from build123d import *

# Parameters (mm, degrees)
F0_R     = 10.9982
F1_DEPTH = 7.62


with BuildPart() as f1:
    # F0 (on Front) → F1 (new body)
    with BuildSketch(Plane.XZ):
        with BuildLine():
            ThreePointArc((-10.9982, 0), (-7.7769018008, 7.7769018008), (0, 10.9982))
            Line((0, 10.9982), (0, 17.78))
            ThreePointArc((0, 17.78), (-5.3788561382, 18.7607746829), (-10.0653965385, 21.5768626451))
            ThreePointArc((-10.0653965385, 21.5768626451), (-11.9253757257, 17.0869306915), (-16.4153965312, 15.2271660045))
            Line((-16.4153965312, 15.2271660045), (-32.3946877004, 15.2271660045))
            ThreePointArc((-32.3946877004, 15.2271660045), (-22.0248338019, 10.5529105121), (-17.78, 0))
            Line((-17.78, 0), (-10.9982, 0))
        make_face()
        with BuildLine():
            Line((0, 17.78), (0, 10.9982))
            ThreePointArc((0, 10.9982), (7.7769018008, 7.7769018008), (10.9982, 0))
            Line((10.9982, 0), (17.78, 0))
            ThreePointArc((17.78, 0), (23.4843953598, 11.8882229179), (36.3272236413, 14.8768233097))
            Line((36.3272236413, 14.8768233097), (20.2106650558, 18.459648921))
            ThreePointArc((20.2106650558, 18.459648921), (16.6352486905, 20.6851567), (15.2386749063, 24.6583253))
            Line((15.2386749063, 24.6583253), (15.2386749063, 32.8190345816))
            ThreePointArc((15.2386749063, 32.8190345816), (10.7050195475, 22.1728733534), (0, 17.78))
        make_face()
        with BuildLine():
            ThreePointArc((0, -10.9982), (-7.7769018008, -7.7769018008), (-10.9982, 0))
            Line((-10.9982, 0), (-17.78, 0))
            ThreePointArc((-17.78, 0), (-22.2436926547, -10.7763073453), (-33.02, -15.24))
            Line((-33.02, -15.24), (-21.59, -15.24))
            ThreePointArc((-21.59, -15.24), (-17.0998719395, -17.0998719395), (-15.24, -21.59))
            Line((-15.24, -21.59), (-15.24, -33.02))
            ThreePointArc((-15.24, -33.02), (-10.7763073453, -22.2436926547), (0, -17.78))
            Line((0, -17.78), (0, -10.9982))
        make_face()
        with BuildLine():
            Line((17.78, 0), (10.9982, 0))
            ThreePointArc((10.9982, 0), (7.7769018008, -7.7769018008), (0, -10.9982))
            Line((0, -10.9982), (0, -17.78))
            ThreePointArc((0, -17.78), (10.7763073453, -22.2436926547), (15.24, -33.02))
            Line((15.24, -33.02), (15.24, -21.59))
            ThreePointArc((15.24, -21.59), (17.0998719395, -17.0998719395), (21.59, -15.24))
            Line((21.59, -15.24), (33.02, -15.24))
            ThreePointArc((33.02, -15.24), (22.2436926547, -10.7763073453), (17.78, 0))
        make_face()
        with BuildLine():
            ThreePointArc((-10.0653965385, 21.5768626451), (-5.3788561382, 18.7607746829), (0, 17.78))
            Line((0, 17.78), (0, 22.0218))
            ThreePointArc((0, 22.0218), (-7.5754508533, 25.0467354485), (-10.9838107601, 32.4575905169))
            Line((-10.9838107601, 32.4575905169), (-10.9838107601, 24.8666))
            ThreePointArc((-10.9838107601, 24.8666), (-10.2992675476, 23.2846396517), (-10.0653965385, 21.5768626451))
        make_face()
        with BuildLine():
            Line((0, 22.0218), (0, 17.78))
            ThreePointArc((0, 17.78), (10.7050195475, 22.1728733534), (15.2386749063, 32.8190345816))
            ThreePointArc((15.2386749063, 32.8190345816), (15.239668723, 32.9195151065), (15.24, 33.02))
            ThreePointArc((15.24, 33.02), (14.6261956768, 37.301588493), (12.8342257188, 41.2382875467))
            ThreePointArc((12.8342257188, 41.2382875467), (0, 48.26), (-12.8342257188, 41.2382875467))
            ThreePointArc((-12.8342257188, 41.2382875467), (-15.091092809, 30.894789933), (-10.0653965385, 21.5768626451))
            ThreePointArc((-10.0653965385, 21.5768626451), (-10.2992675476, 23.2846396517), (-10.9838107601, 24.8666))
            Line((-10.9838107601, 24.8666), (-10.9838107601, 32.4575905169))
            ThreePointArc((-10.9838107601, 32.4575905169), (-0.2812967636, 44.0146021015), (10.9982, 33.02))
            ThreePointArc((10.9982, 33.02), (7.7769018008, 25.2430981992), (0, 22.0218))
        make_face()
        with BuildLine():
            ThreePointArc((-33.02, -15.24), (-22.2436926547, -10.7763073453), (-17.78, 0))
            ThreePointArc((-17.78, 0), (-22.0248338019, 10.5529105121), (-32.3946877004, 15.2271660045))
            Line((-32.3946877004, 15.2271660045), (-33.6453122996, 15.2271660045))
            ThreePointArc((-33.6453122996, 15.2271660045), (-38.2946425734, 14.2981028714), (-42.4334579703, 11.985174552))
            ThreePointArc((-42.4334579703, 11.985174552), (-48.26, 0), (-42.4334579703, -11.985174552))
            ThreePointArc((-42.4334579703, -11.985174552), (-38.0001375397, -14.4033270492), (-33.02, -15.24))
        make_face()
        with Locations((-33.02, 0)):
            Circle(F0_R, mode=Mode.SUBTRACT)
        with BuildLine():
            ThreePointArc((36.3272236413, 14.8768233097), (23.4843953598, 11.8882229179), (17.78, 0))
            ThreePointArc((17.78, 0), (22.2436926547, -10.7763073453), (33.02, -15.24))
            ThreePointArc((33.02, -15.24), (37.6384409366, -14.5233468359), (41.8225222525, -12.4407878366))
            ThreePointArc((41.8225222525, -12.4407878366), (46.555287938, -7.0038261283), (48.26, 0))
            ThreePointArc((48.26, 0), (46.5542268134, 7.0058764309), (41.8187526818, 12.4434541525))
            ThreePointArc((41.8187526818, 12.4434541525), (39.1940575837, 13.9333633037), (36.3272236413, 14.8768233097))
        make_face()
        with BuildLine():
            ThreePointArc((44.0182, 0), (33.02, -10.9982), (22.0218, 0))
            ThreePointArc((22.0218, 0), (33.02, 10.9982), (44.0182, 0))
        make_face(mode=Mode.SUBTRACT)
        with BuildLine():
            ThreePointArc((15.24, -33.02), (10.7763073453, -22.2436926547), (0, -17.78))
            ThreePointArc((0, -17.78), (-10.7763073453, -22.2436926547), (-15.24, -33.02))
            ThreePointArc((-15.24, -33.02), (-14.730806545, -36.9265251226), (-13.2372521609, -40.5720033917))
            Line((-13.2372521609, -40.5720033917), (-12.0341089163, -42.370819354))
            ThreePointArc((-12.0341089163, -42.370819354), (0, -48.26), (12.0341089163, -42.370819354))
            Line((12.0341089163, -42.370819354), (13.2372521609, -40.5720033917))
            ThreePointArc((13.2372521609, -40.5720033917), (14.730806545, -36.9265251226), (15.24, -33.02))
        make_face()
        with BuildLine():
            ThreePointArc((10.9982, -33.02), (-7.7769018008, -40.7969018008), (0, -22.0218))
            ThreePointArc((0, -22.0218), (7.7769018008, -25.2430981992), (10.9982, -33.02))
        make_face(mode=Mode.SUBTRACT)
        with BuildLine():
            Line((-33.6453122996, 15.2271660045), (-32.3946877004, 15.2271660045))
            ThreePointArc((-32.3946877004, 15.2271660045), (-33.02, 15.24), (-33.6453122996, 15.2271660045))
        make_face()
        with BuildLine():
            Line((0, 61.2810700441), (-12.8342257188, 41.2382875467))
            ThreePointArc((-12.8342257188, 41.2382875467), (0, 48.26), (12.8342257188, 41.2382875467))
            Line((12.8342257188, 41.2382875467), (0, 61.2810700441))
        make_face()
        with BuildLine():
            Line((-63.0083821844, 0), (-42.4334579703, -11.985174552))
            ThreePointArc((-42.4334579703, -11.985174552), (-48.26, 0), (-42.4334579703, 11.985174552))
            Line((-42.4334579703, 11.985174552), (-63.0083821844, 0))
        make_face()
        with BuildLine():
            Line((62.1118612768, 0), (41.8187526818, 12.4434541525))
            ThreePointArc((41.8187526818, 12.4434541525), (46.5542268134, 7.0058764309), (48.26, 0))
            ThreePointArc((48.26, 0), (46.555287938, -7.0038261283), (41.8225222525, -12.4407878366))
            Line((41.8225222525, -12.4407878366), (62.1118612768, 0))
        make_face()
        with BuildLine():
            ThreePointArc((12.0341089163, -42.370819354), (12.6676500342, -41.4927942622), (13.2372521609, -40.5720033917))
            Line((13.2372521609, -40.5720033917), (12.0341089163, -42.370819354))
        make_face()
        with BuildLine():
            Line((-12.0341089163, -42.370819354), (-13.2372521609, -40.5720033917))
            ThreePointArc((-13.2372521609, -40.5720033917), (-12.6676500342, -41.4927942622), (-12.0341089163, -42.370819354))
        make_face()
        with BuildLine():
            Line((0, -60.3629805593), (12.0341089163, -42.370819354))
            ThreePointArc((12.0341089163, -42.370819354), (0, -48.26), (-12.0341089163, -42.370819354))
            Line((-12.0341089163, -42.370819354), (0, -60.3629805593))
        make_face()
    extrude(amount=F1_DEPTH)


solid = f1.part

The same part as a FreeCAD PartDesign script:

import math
import FreeCAD as App
import Part
import Sketcher
from FreeCAD import Vector
Q = App.Units.Quantity

doc = App.newDocument("Part")
body = doc.addObject("PartDesign::Body", "Body")

# Sketch on XZ plane
sketch1 = body.newObject("Sketcher::SketchObject", "Sketch")
sketch1.AttachmentSupport = (doc.getObject("XZ_Plane"), [""])
sketch1.MapMode = "FlatFace"
sketch1.addGeometry(Part.LineSegment(Vector(36.327224, 14.876823, 0), Vector(20.210665, 18.459649, 0)), False)
sketch1.addGeometry(Part.ArcOfCircle(Part.Circle(Vector(21.588675, 24.658325, 0), Vector(0, 0, 1), 6.35), math.radians(180), math.radians(257.466557)), False)
sketch1.addGeometry(Part.LineSegment(Vector(15.238675, 24.658325, 0), Vector(15.238675, 32.819035, 0)), False)
sketch1.addGeometry(Part.ArcOfCircle(Part.Circle(Vector(0.000001, 33.02, 0), Vector(0, 0, 1), 15.239999), math.radians(-0.755565), math.radians(0)), False)
sketch1.addGeometry(Part.ArcOfCircle(Part.Circle(Vector(0, 33.02, 0), Vector(0, 0, 1), 15.24), math.radians(0), math.radians(32.633122)), False)
sketch1.addGeometry(Part.LineSegment(Vector(12.834226, 41.238288, 0), Vector(0, 61.28107, 0)), False)
sketch1.addGeometry(Part.LineSegment(Vector(0, 61.28107, 0), Vector(-12.834226, 41.238288, 0)), False)
sketch1.addGeometry(Part.ArcOfCircle(Part.Circle(Vector(0, 33.02, 0), Vector(0, 0, 1), 15.24), math.radians(147.366878), math.radians(228.665105)), False)
sketch1.addGeometry(Part.ArcOfCircle(Part.Circle(Vector(-16.415397, 21.577166, 0), Vector(0, 0, 1), 6.35), math.radians(-90), math.radians(-0.002737)), False)
sketch1.addGeometry(Part.LineSegment(Vector(-16.415397, 15.227166, 0), Vector(-32.394688, 15.227166, 0)), False)
sketch1.addGeometry(Part.ArcOfCircle(Part.Circle(Vector(-33.02, 0, 0), Vector(0, 0, 1), 15.24), math.radians(87.648437), math.radians(92.351563)), False)
sketch1.addGeometry(Part.ArcOfCircle(Part.Circle(Vector(-33.02, 0, 0), Vector(0, 0, 1), 15.24), math.radians(92.351563), math.radians(128.146984)), False)
sketch1.addGeometry(Part.LineSegment(Vector(-42.433458, 11.985175, 0), Vector(-63.008382, 0, 0)), False)
sketch1.addGeometry(Part.LineSegment(Vector(-63.008382, 0, 0), Vector(-42.433458, -11.985175, 0)), False)
sketch1.addGeometry(Part.ArcOfCircle(Part.Circle(Vector(-33.02, 0, 0), Vector(0, 0, 1), 15.24), math.radians(-128.146984), math.radians(-90)), False)
sketch1.addGeometry(Part.LineSegment(Vector(-33.02, -15.24, 0), Vector(-21.59, -15.24, 0)), False)
sketch1.addGeometry(Part.ArcOfCircle(Part.Circle(Vector(-21.59, -21.59, 0), Vector(0, 0, 1), 6.35), math.radians(0), math.radians(90)), False)
sketch1.addGeometry(Part.LineSegment(Vector(-15.24, -21.59, 0), Vector(-15.24, -33.02, 0)), False)
sketch1.addGeometry(Part.ArcOfCircle(Part.Circle(Vector(0, -33.02, 0), Vector(0, 0, 1), 15.24), math.radians(180), math.radians(209.705251)), False)
sketch1.addGeometry(Part.ArcOfCircle(Part.Circle(Vector(0, -33.02, 0), Vector(0, 0, 1), 15.24), math.radians(-150.294749), math.radians(-142.151853)), False)
sketch1.addGeometry(Part.LineSegment(Vector(-12.034109, -42.370819, 0), Vector(0, -60.362981, 0)), False)
sketch1.addGeometry(Part.LineSegment(Vector(0, -60.362981, 0), Vector(12.034109, -42.370819, 0)), False)
sketch1.addGeometry(Part.ArcOfCircle(Part.Circle(Vector(0, -33.02, 0), Vector(0, 0, 1), 15.24), math.radians(-37.848147), math.radians(-29.705251)), False)
sketch1.addGeometry(Part.ArcOfCircle(Part.Circle(Vector(0, -33.02, 0), Vector(0, 0, 1), 15.24), math.radians(-29.705251), math.radians(0)), False)
sketch1.addGeometry(Part.LineSegment(Vector(15.24, -33.02, 0), Vector(15.24, -21.59, 0)), False)
sketch1.addGeometry(Part.ArcOfCircle(Part.Circle(Vector(21.59, -21.59, 0), Vector(0, 0, 1), 6.35), math.radians(90), math.radians(180)), False)
sketch1.addGeometry(Part.LineSegment(Vector(21.59, -15.24, 0), Vector(33.02, -15.24, 0)), False)
sketch1.addGeometry(Part.ArcOfCircle(Part.Circle(Vector(33.02, 0, 0), Vector(0, 0, 1), 15.24), math.radians(-90), math.radians(-54.718553)), False)
sketch1.addGeometry(Part.LineSegment(Vector(41.822522, -12.440788, 0), Vector(62.111861, 0, 0)), False)
sketch1.addGeometry(Part.LineSegment(Vector(62.111861, 0, 0), Vector(41.818753, 12.443454, 0)), False)
sketch1.addGeometry(Part.ArcOfCircle(Part.Circle(Vector(33.02, 0, 0), Vector(0, 0, 1), 15.24), math.radians(54.735912), math.radians(77.466557)), False)
sketch1.addGeometry(Part.Circle(Vector(-33.02, 0, 0), Vector(0, 0, 1), 10.9982), False)
sketch1.addGeometry(Part.ArcOfCircle(Part.Circle(Vector(0, -33.02, 0), Vector(0, 0, 1), 10.9982), math.radians(0), math.radians(90)), False)
sketch1.addGeometry(Part.ArcOfCircle(Part.Circle(Vector(0, -33.02, 0), Vector(0, 0, 1), 10.9982), math.radians(90), math.radians(360)), False)
sketch1.addGeometry(Part.ArcOfCircle(Part.Circle(Vector(0, 0, 0), Vector(0, 0, 1), 10.9982), math.radians(90), math.radians(180)), False)
sketch1.addGeometry(Part.ArcOfCircle(Part.Circle(Vector(0, 0, 0), Vector(0, 0, 1), 10.9982), math.radians(0), math.radians(90)), False)
sketch1.addGeometry(Part.ArcOfCircle(Part.Circle(Vector(0, 0, 0), Vector(0, 0, 1), 10.9982), math.radians(-90), math.radians(0)), False)
sketch1.addGeometry(Part.ArcOfCircle(Part.Circle(Vector(0, 0, 0), Vector(0, 0, 1), 10.9982), math.radians(180), math.radians(270)), False)
sketch1.addGeometry(Part.Circle(Vector(33.02, 0, 0), Vector(0, 0, 1), 10.9982), False)
sketch1.addGeometry(Part.ArcOfCircle(Part.Circle(Vector(0, 33.02, 0), Vector(0, 0, 1), 10.9982), math.radians(-177.068816), math.radians(-90)), False)
sketch1.addGeometry(Part.ArcOfCircle(Part.Circle(Vector(0, 33.02, 0), Vector(0, 0, 1), 10.9982), math.radians(0), math.radians(182.931184)), False)
sketch1.addGeometry(Part.ArcOfCircle(Part.Circle(Vector(0, 33.02, 0), Vector(0, 0, 1), 10.9982), math.radians(-90), math.radians(0)), False)
sketch1.addConstraint(Sketcher.Constraint("Tangent", 0, 2, 1, 2))
sketch1.addConstraint(Sketcher.Constraint("Tangent", 1, 1, 2, 1))
sketch1.addConstraint(Sketcher.Constraint("Coincident", 2, 2, 3, 1))
sketch1.addConstraint(Sketcher.Constraint("Tangent", 3, 2, 4, 1))
sketch1.addConstraint(Sketcher.Constraint("Tangent", 4, 2, 5, 1))
sketch1.addConstraint(Sketcher.Constraint("Coincident", 5, 2, 6, 1))
sketch1.addConstraint(Sketcher.Constraint("Tangent", 6, 2, 7, 1))
sketch1.addConstraint(Sketcher.Constraint("Coincident", 7, 2, 8, 2))
sketch1.addConstraint(Sketcher.Constraint("Tangent", 8, 1, 9, 1))
sketch1.addConstraint(Sketcher.Constraint("Coincident", 9, 2, 10, 1))
sketch1.addConstraint(Sketcher.Constraint("Tangent", 10, 2, 11, 1))
sketch1.addConstraint(Sketcher.Constraint("Coincident", 11, 2, 12, 1))
sketch1.addConstraint(Sketcher.Constraint("Coincident", 12, 2, 13, 1))
sketch1.addConstraint(Sketcher.Constraint("Coincident", 13, 2, 14, 1))
sketch1.addConstraint(Sketcher.Constraint("Tangent", 14, 2, 15, 1))
sketch1.addConstraint(Sketcher.Constraint("Tangent", 15, 2, 16, 2))
sketch1.addConstraint(Sketcher.Constraint("Tangent", 16, 1, 17, 1))
sketch1.addConstraint(Sketcher.Constraint("Tangent", 17, 2, 18, 1))
sketch1.addConstraint(Sketcher.Constraint("Tangent", 18, 2, 19, 1))
sketch1.addConstraint(Sketcher.Constraint("Coincident", 19, 2, 20, 1))
sketch1.addConstraint(Sketcher.Constraint("Coincident", 20, 2, 21, 1))
sketch1.addConstraint(Sketcher.Constraint("Coincident", 21, 2, 22, 1))
sketch1.addConstraint(Sketcher.Constraint("Tangent", 22, 2, 23, 1))
sketch1.addConstraint(Sketcher.Constraint("Tangent", 23, 2, 24, 1))
sketch1.addConstraint(Sketcher.Constraint("Tangent", 24, 2, 25, 2))
sketch1.addConstraint(Sketcher.Constraint("Tangent", 25, 1, 26, 1))
sketch1.addConstraint(Sketcher.Constraint("Tangent", 26, 2, 27, 1))
sketch1.addConstraint(Sketcher.Constraint("Coincident", 27, 2, 28, 1))
sketch1.addConstraint(Sketcher.Constraint("Coincident", 28, 2, 29, 1))
sketch1.addConstraint(Sketcher.Constraint("Coincident", 29, 2, 30, 1))
sketch1.addConstraint(Sketcher.Constraint("Tangent", 30, 2, 0, 1))
sketch1.addConstraint(Sketcher.Constraint("Tangent", 32, 1, 33, 2))
sketch1.addConstraint(Sketcher.Constraint("Coincident", 33, 1, 32, 2))
sketch1.addConstraint(Sketcher.Constraint("Tangent", 34, 1, 35, 2))
sketch1.addConstraint(Sketcher.Constraint("Tangent", 35, 1, 36, 2))
sketch1.addConstraint(Sketcher.Constraint("Tangent", 36, 1, 37, 2))
sketch1.addConstraint(Sketcher.Constraint("Tangent", 37, 1, 34, 2))
sketch1.addConstraint(Sketcher.Constraint("Tangent", 39, 1, 40, 2))
sketch1.addConstraint(Sketcher.Constraint("Tangent", 40, 1, 41, 2))
sketch1.addConstraint(Sketcher.Constraint("Tangent", 41, 1, 39, 2))
sketch1.addConstraint(Sketcher.Constraint("Vertical", 2))
sketch1.addConstraint(Sketcher.Constraint("Horizontal", 9))
sketch1.addConstraint(Sketcher.Constraint("Horizontal", 15))
sketch1.addConstraint(Sketcher.Constraint("Vertical", 17))
sketch1.addConstraint(Sketcher.Constraint("Vertical", 24))
sketch1.addConstraint(Sketcher.Constraint("Horizontal", 26))
sketch1.addConstraint(Sketcher.Constraint("Coincident", 34, 3, -1, 1))
sketch1.addConstraint(Sketcher.Constraint("Coincident", 7, 3, 3, 3))
sketch1.addConstraint(Sketcher.Constraint("Coincident", 14, 3, 10, 3))
sketch1.addConstraint(Sketcher.Constraint("Coincident", 22, 3, 18, 3))
sketch1.addConstraint(Sketcher.Constraint("Coincident", 30, 3, 27, 3))
sketch1.addConstraint(Sketcher.Constraint("Coincident", 31, 3, 10, 3))
sketch1.addConstraint(Sketcher.Constraint("Coincident", 32, 3, 18, 3))
sketch1.addConstraint(Sketcher.Constraint("Coincident", 38, 3, 27, 3))
sketch1.addConstraint(Sketcher.Constraint("Coincident", 39, 3, 3, 3))
sketch1.addConstraint(Sketcher.Constraint("Equal", 3, 4))
sketch1.addConstraint(Sketcher.Constraint("Equal", 4, 7))
sketch1.addConstraint(Sketcher.Constraint("Equal", 1, 8))
sketch1.addConstraint(Sketcher.Constraint("Equal", 7, 10))
sketch1.addConstraint(Sketcher.Constraint("Equal", 10, 11))
sketch1.addConstraint(Sketcher.Constraint("Equal", 11, 14))
sketch1.addConstraint(Sketcher.Constraint("Equal", 8, 16))
sketch1.addConstraint(Sketcher.Constraint("Equal", 14, 18))
sketch1.addConstraint(Sketcher.Constraint("Equal", 18, 19))
sketch1.addConstraint(Sketcher.Constraint("Equal", 19, 22))
sketch1.addConstraint(Sketcher.Constraint("Equal", 22, 23))
sketch1.addConstraint(Sketcher.Constraint("Equal", 16, 25))
sketch1.addConstraint(Sketcher.Constraint("Equal", 23, 27))
sketch1.addConstraint(Sketcher.Constraint("Equal", 27, 30))
sketch1.addConstraint(Sketcher.Constraint("Equal", 31, 32))
sketch1.addConstraint(Sketcher.Constraint("Equal", 33, 34))
sketch1.addConstraint(Sketcher.Constraint("Equal", 34, 35))
sketch1.addConstraint(Sketcher.Constraint("Equal", 37, 38))
sketch1.addConstraint(Sketcher.Constraint("Equal", 38, 39))
sketch1.addConstraint(Sketcher.Constraint("Symmetric", 3, 3, 18, 3, -1, 1))
sketch1.addConstraint(Sketcher.Constraint("Symmetric", 10, 3, 27, 3, -1, 1))
sketch1.addConstraint(Sketcher.Constraint("Symmetric", 16, 3, 25, 3, -2))
sketch1.addConstraint(Sketcher.Constraint("PointOnObject", 5, 2, -2))
sketch1.addConstraint(Sketcher.Constraint("PointOnObject", 12, 2, -1))
sketch1.addConstraint(Sketcher.Constraint("PointOnObject", 20, 2, -2))
sketch1.addConstraint(Sketcher.Constraint("PointOnObject", 28, 2, -1))
sketch1.addConstraint(Sketcher.Constraint("PointOnObject", 33, 1, -2))
sketch1.addConstraint(Sketcher.Constraint("PointOnObject", 34, 1, -2))
sketch1.addConstraint(Sketcher.Constraint("PointOnObject", 35, 1, -1))
sketch1.addConstraint(Sketcher.Constraint("PointOnObject", 36, 1, -2))
sketch1.addConstraint(Sketcher.Constraint("PointOnObject", 37, 1, -1))
sketch1.addConstraint(Sketcher.Constraint("PointOnObject", 41, 1, -2))
sketch1.addConstraint(Sketcher.Constraint("Horizontal", 41, 3, 3, 2))
sketch1.addConstraint(Sketcher.Constraint("Horizontal", 9, 2, 10, 2))
sketch1.addConstraint(Sketcher.Constraint("Horizontal", 19, 2, 21, 2))
sketch1.addConstraint(Sketcher.Constraint("Horizontal", 18, 2, 22, 2))
sketch1.addConstraint(Sketcher.Constraint("Horizontal", 23, 2, 32, 1))
sketch1.addConstraint(Sketcher.Constraint("Horizontal", 3, 2, 40, 1))
sketch1.addConstraint(Sketcher.Constraint("Vertical", 11, 2, 13, 2))
sketch1.addConstraint(Sketcher.Constraint("Equal", 26, 17))
sketch1.addConstraint(Sketcher.Constraint("Equal", 6, 28))
sketch1.addConstraint(Sketcher.Constraint("Radius", 3, Q("0.5999999 in")))
sketch1.addConstraint(Sketcher.Constraint("Radius", 1, Q("0.25 in")))
sketch1.addConstraint(Sketcher.Constraint("Diameter", 31, Q("0.866 in")))
sketch1.addConstraint(Sketcher.Constraint("DistanceX", 15, 1, 15, 2, Q("0.45 in")))
sketch1.addConstraint(Sketcher.Constraint("Distance", 0, Q("0.65 in")))
sketch1.addConstraint(Sketcher.Constraint("Distance", 5, Q("0.937 in")))
sketch1.addConstraint(Sketcher.Constraint("DistanceX", 9, 2, 9, 1, 15.979291))
sketch1.addConstraint(Sketcher.Constraint("DistanceY", 2, 1, 2, 2, 8.160709))
sketch1.addConstraint(Sketcher.Constraint("Distance", 20, 21.64573))
sketch1.addConstraint(Sketcher.Constraint("DistanceX", 19, 2, -1, 1, 12.034109))
sketch1.addConstraint(Sketcher.Constraint("DistanceX", -1, 1, 28, 2, 62.111861))
sketch1.addConstraint(Sketcher.Constraint("DistanceX", 39, 1, -1, 1, 10.983811))
sketch1.addConstraint(Sketcher.Constraint("Distance", 12, 23.811172))
sketch1.addConstraint(Sketcher.Constraint("Distance", 29, 23.804407))
sketch1.addConstraint(Sketcher.Constraint("DistanceX", 8, 3, -1, 1, 16.415397))
sketch1.addConstraint(Sketcher.Constraint("DistanceX", 11, 2, -1, 1, 42.433458))
sketch1.addConstraint(Sketcher.Constraint("DistanceX", 18, 2, -1, 1, 13.237252))
pad1 = body.newObject("PartDesign::Pad", "Pad")
pad1.Profile = sketch1
pad1.Length = Q("0.3 in")

doc.recompute()
